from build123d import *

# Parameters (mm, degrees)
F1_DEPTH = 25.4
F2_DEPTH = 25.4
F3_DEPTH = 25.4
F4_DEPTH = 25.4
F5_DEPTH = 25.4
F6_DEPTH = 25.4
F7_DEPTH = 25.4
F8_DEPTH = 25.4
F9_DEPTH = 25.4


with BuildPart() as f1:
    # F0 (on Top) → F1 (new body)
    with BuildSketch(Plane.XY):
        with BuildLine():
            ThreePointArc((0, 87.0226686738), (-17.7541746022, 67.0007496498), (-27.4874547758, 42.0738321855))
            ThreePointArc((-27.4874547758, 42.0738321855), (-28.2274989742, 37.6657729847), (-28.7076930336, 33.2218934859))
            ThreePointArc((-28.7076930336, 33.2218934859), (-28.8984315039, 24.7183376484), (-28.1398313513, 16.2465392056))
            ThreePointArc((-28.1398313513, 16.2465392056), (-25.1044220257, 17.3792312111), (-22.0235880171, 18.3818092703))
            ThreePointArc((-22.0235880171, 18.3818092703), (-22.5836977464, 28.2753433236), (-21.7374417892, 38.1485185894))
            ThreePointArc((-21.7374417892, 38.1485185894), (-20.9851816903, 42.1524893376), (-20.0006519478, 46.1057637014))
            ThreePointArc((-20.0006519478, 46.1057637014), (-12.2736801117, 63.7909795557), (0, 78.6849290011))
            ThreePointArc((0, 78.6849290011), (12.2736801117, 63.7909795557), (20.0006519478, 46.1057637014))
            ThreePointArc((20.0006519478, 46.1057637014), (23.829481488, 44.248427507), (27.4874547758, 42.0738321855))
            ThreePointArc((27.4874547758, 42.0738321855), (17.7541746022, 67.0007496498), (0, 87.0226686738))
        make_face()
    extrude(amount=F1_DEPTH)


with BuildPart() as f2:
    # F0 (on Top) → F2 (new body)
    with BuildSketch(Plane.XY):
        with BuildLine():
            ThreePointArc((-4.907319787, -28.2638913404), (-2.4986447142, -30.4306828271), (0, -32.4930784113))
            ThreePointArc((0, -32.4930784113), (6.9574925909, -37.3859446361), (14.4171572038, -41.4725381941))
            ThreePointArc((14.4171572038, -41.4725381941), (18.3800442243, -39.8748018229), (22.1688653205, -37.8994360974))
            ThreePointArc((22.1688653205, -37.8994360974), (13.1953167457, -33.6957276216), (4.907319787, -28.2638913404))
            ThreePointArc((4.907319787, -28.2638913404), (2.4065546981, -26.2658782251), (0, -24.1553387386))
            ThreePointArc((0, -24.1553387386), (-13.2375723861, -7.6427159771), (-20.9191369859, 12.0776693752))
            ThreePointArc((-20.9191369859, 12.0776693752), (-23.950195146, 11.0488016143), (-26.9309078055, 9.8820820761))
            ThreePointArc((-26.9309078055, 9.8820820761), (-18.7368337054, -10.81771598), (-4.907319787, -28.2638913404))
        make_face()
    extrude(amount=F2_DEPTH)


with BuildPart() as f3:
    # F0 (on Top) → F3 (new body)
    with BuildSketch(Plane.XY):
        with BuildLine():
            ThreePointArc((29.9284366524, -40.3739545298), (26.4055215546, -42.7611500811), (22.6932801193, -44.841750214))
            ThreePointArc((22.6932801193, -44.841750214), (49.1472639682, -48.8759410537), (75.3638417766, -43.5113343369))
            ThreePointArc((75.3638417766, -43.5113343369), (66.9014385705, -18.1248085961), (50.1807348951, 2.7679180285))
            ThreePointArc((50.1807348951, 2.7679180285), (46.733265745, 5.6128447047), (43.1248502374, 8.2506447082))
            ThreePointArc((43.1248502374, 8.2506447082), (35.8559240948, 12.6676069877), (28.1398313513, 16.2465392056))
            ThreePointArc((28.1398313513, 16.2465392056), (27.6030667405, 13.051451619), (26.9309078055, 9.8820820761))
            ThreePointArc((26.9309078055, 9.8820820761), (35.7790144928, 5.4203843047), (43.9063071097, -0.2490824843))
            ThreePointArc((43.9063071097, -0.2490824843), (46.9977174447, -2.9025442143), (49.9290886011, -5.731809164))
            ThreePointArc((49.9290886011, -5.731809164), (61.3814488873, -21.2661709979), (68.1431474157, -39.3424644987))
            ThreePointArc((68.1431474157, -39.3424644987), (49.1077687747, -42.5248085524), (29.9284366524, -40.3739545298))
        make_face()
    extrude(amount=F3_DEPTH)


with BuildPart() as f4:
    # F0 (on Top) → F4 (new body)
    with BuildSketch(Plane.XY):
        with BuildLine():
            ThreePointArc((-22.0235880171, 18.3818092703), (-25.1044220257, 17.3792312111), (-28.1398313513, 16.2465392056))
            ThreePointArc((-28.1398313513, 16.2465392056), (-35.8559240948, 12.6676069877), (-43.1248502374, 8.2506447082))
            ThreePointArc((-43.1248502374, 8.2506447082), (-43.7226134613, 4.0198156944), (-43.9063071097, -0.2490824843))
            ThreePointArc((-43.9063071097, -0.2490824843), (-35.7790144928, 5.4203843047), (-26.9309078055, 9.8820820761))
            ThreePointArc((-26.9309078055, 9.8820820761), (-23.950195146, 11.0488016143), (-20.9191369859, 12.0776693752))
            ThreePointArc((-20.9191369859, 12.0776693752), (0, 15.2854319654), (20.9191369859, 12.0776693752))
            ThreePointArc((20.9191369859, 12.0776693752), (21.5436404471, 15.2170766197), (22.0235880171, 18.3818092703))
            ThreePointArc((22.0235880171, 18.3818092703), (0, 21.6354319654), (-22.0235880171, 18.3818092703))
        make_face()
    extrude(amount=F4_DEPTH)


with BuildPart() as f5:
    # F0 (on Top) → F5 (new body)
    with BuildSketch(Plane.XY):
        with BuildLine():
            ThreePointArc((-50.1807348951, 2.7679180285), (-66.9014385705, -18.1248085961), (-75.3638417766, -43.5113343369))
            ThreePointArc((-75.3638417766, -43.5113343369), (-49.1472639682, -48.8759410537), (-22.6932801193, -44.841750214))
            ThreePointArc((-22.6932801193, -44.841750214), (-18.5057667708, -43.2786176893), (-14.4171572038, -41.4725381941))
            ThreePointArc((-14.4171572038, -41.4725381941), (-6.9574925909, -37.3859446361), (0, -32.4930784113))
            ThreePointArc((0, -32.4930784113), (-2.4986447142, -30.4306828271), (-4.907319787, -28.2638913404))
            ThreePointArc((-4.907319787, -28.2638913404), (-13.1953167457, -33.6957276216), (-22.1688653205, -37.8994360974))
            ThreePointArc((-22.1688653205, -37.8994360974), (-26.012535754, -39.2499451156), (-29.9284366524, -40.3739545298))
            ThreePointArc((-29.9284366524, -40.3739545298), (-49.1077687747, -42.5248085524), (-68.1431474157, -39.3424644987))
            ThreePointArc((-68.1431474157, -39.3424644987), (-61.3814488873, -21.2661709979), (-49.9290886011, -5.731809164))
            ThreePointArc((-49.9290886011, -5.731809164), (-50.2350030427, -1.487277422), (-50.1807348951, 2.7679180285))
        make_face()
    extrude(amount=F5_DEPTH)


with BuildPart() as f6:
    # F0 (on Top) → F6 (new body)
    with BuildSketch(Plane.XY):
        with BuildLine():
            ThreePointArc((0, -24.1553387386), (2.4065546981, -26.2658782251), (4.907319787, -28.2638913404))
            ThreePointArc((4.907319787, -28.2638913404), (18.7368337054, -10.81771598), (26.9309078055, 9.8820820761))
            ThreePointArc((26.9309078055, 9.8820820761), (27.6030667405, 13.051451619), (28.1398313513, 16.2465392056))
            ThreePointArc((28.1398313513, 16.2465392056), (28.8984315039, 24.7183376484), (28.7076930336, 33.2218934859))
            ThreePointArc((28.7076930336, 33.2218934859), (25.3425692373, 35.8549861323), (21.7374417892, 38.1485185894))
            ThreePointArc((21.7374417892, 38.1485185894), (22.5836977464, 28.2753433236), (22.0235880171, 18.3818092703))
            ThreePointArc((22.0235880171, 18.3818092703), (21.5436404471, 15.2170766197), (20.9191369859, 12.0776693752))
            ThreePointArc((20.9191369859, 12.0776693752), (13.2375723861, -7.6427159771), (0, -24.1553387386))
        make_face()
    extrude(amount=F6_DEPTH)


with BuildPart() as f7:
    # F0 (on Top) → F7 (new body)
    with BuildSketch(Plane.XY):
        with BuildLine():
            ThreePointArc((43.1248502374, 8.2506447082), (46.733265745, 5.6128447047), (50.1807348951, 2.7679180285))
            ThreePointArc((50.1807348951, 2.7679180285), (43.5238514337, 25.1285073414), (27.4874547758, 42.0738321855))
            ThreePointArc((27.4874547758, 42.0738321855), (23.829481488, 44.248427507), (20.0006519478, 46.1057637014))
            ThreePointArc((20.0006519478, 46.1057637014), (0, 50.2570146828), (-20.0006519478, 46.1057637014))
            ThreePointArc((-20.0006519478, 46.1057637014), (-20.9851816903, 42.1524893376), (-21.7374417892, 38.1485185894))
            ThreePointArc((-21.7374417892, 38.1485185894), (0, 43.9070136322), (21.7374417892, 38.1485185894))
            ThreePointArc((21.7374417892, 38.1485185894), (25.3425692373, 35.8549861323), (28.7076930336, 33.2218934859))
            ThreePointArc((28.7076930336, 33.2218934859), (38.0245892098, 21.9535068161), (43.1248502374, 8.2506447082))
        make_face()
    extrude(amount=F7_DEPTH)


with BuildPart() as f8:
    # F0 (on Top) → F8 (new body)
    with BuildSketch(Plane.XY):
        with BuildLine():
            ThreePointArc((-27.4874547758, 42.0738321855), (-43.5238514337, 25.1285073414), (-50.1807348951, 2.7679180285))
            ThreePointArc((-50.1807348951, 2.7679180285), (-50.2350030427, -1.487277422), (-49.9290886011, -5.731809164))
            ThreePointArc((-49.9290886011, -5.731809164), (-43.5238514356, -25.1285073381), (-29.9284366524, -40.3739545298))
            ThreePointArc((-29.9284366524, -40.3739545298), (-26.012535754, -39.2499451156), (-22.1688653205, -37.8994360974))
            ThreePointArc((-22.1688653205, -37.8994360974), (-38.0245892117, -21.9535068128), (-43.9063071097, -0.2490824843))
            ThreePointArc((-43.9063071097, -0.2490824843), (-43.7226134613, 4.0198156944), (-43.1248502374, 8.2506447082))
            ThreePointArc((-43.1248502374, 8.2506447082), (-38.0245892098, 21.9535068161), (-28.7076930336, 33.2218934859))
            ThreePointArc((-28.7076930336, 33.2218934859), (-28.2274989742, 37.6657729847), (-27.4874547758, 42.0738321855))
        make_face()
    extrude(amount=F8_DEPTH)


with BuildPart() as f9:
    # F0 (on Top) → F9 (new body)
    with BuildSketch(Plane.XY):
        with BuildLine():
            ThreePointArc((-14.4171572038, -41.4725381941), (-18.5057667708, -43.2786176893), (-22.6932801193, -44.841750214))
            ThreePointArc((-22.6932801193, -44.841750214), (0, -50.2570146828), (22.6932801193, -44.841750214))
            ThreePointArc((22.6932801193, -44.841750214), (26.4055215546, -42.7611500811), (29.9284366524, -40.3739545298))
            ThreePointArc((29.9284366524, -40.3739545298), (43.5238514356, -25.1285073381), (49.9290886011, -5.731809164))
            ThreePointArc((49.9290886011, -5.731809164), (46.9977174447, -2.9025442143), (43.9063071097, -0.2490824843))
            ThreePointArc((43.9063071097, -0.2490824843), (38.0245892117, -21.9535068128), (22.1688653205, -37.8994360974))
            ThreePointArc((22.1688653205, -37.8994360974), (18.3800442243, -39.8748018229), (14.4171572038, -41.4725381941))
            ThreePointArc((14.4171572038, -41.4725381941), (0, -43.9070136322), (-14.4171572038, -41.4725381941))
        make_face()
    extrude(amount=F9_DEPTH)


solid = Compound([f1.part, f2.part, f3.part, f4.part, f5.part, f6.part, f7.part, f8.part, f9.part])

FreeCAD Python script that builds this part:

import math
import FreeCAD as App
import Part
import Sketcher
from FreeCAD import Vector
Q = App.Units.Quantity

doc = App.newDocument("Part")
params = doc.addObject("Spreadsheet::Sheet", "Params")
for row, (alias, value) in enumerate([
    ("pad1_length", "1 in"),
    ("pad2_length", "1 in"),
    ("pad3_length", "1 in"),
    ("pad4_length", "1 in"),
    ("pad5_length", "1 in"),
    ("pad6_length", "1 in"),
    ("pad7_length", "1 in"),
    ("pad8_length", "1 in"),
    ("pad9_length", "1 in"),
], start=1):
    params.set(f"A{row}", alias)
    params.set(f"B{row}", "=" + value)
    params.setAlias(f"B{row}", alias)

body = doc.addObject("PartDesign::Body", "Body")

sketch1 = body.newObject("Sketcher::SketchObject", "Sketch")
sketch1.AttachmentSupport = (doc.getObject("XY_Plane"), [""])
sketch1.MapMode = "FlatFace"
sketch1.addGeometry([
    Part.ArcOfCircle(Part.Circle(Vector(47.22401, 27.264795, 0), Vector(0, 0, 1), 76.165022), math.radians(128.317761), math.radians(168.788364)),
    Part.ArcOfCircle(Part.Circle(Vector(47.22401, 27.264795, 0), Vector(0, 0, 1), 76.165022), math.radians(168.788364), math.radians(175.514141)),
    Part.ArcOfCircle(Part.Circle(Vector(47.22401, 27.264795, 0), Vector(0, 0, 1), 76.165022), math.radians(175.514141), math.radians(188.317761)),
    Part.ArcOfCircle(Part.Circle(Vector(0, -54.52959, 0), Vector(0, 0, 1), 76.165022), math.radians(106.807445), math.radians(111.682239)),
    Part.ArcOfCircle(Part.Circle(Vector(47.22401, 27.264795, 0), Vector(0, 0, 1), 69.815022), math.radians(171.031367), math.radians(187.309902)),
    Part.ArcOfCircle(Part.Circle(Vector(47.22401, 27.264795, 0), Vector(0, 0, 1), 69.815022), math.radians(164.343479), math.radians(171.031367)),
    Part.ArcOfCircle(Part.Circle(Vector(47.22401, 27.264795, 0), Vector(0, 0, 1), 69.815022), math.radians(132.564221), math.radians(164.343479)),
    Part.ArcOfCircle(Part.Circle(Vector(-47.22401, 27.264795, 0), Vector(0, 0, 1), 69.815022), math.radians(15.656521), math.radians(47.435779)),
    Part.ArcOfCircle(Part.Circle(Vector(0, 0, 0), Vector(0, 0, 1), 50.257015), math.radians(56.842823), math.radians(66.54883)),
    Part.ArcOfCircle(Part.Circle(Vector(-47.22401, 27.264795, 0), Vector(0, 0, 1), 76.165022), math.radians(11.211636), math.radians(51.682239)),
], False)
sketch1.addConstraint([
    Sketcher.Constraint("Tangent", 0, 2, 1, 1),
    Sketcher.Constraint("Tangent", 1, 2, 2, 1),
    Sketcher.Constraint("Coincident", 2, 2, 3, 2),
    Sketcher.Constraint("Coincident", 3, 1, 4, 2),
    Sketcher.Constraint("Tangent", 4, 1, 5, 2),
    Sketcher.Constraint("Tangent", 5, 1, 6, 2),
    Sketcher.Constraint("Coincident", 6, 1, 7, 2),
    Sketcher.Constraint("Coincident", 7, 1, 8, 2),
    Sketcher.Constraint("Coincident", 8, 1, 9, 1),
    Sketcher.Constraint("Coincident", 9, 2, 0, 1),
    Sketcher.Constraint("Coincident", 8, 3, -1, 1),
    Sketcher.Constraint("Coincident", 2, 3, 0, 3),
    Sketcher.Constraint("Coincident", 4, 3, 0, 3),
    Sketcher.Constraint("Coincident", 6, 3, 0, 3),
    Sketcher.Constraint("Coincident", 9, 3, 7, 3),
    Sketcher.Constraint("Equal", 2, 3),
    Sketcher.Constraint("Equal", 6, 7),
    Sketcher.Constraint("Equal", 3, 9),
    Sketcher.Constraint("Symmetric", 0, 3, 7, 3, -2),
    Sketcher.Constraint("PointOnObject", 3, 3, -2),
    Sketcher.Constraint("Horizontal", 5, 1, 7, 1),
    Sketcher.Constraint("Horizontal", 0, 2, 8, 1),
    Sketcher.Constraint("Radius", 0, 76.165022),
    Sketcher.Constraint("Radius", 4, 69.815022),
    Sketcher.Constraint("Radius", 8, 50.257015),
    Sketcher.Constraint("DistanceY", 7, 3, 1, 2, 5.957098),
    Sketcher.Constraint("DistanceX", -1, 1, 0, 3, 47.22401),
    Sketcher.Constraint("DistanceY", 3, 3, -1, 1, 54.52959),
    Sketcher.Constraint("DistanceX", 2, 2, -1, 1, 28.139831),
    Sketcher.Constraint("DistanceX", 4, 1, -1, 1, 21.737442),
])
pad1 = body.newObject("PartDesign::Pad", "Pad")
pad1.Profile = sketch1
pad1.setExpression("Length", "Params.pad1_length")
body2 = doc.addObject("PartDesign::Body", "Body001")

sketch2 = body2.newObject("Sketcher::SketchObject", "Sketch001")
sketch2.AttachmentSupport = (doc.getObject("XY_Plane001"), [""])
sketch2.MapMode = "FlatFace"
sketch2.addGeometry([
    Part.ArcOfCircle(Part.Circle(Vector(47.22401, 27.264795, 0), Vector(0, 0, 1), 76.165022), math.radians(-133.192555), math.radians(-128.317761)),
    Part.ArcOfCircle(Part.Circle(Vector(47.22401, 27.264795, 0), Vector(0, 0, 1), 76.165022), math.radians(-128.317761), math.radians(-115.514141)),
    Part.ArcOfCircle(Part.Circle(Vector(0, 0, 0), Vector(0, 0, 1), 43.907014), math.radians(-70.830943), math.radians(-59.674962)),
    Part.ArcOfCircle(Part.Circle(Vector(47.22401, 27.264795, 0), Vector(0, 0, 1), 69.815022), math.radians(-127.309902), math.radians(-111.031367)),
    Part.ArcOfCircle(Part.Circle(Vector(47.22401, 27.264795, 0), Vector(0, 0, 1), 69.815022), math.radians(-132.564221), math.radians(-127.309902)),
    Part.ArcOfCircle(Part.Circle(Vector(47.22401, 27.264795, 0), Vector(0, 0, 1), 69.815022), math.radians(-167.435779), math.radians(-132.564221)),
    Part.ArcOfCircle(Part.Circle(Vector(0, -54.52959, 0), Vector(0, 0, 1), 69.815022), math.radians(107.435779), math.radians(112.690098)),
    Part.ArcOfCircle(Part.Circle(Vector(47.22401, 27.264795, 0), Vector(0, 0, 1), 76.165022), math.radians(-166.807445), math.radians(-133.192555)),
], False)
sketch2.addConstraint([
    Sketcher.Constraint("Tangent", 0, 2, 1, 1),
    Sketcher.Constraint("Coincident", 1, 2, 2, 1),
    Sketcher.Constraint("Coincident", 2, 2, 3, 2),
    Sketcher.Constraint("Tangent", 3, 1, 4, 2),
    Sketcher.Constraint("Tangent", 4, 1, 5, 2),
    Sketcher.Constraint("Coincident", 5, 1, 6, 1),
    Sketcher.Constraint("Coincident", 6, 2, 7, 1),
    Sketcher.Constraint("Tangent", 7, 2, 0, 1),
    Sketcher.Constraint("Coincident", 2, 3, -1, 1),
    Sketcher.Constraint("Coincident", 3, 3, 0, 3),
    Sketcher.Constraint("Coincident", 5, 3, 0, 3),
    Sketcher.Constraint("Equal", 0, 1),
    Sketcher.Constraint("Equal", 5, 6),
    Sketcher.Constraint("Equal", 1, 7),
    Sketcher.Constraint("Symmetric", 3, 1, 7, 2, -2),
    Sketcher.Constraint("PointOnObject", 6, 3, -2),
    Sketcher.Constraint("PointOnObject", 0, 2, -2),
    Sketcher.Constraint("PointOnObject", 4, 1, -2),
    Sketcher.Constraint("Radius", 0, 76.165022),
    Sketcher.Constraint("Radius", 2, 43.907014),
    Sketcher.Constraint("Radius", 3, 69.815022),
    Sketcher.Constraint("DistanceY", 6, 3, 3, 1, 26.265699),
    Sketcher.Constraint("DistanceY", 1, 2, 4, 1, 17.317199),
    Sketcher.Constraint("DistanceX", -1, 1, 0, 3, 47.22401),
])
pad2 = body2.newObject("PartDesign::Pad", "Pad001")
pad2.Profile = sketch2
pad2.setExpression("Length", "Params.pad2_length")
body3 = doc.addObject("PartDesign::Body", "Body002")

sketch3 = body3.newObject("Sketcher::SketchObject", "Sketch002")
sketch3.AttachmentSupport = (doc.getObject("XY_Plane002"), [""])
sketch3.MapMode = "FlatFace"
sketch3.addGeometry([
    Part.ArcOfCircle(Part.Circle(Vector(0, 0, 0), Vector(0, 0, 1), 50.257015), math.radians(-63.157177), math.radians(-53.45117)),
    Part.ArcOfCircle(Part.Circle(Vector(47.22401, 27.264795, 0), Vector(0, 0, 1), 76.165022), math.radians(-108.788364), math.radians(-68.317761)),
    Part.ArcOfCircle(Part.Circle(Vector(0, -54.52959, 0), Vector(0, 0, 1), 76.165022), math.radians(8.317761), math.radians(48.788364)),
    Part.ArcOfCircle(Part.Circle(Vector(0, -54.52959, 0), Vector(0, 0, 1), 76.165022), math.radians(48.788364), math.radians(55.514141)),
    Part.ArcOfCircle(Part.Circle(Vector(0, -54.52959, 0), Vector(0, 0, 1), 76.165022), math.radians(55.514141), math.radians(68.317761)),
    Part.ArcOfCircle(Part.Circle(Vector(-47.22401, 27.264795, 0), Vector(0, 0, 1), 76.165022), math.radians(-13.192555), math.radians(-8.317761)),
    Part.ArcOfCircle(Part.Circle(Vector(0, -54.52959, 0), Vector(0, 0, 1), 69.815022), math.radians(51.031367), math.radians(67.309902)),
    Part.ArcOfCircle(Part.Circle(Vector(0, -54.52959, 0), Vector(0, 0, 1), 69.815022), math.radians(44.343479), math.radians(51.031367)),
    Part.ArcOfCircle(Part.Circle(Vector(0, -54.52959, 0), Vector(0, 0, 1), 69.815022), math.radians(12.564221), math.radians(44.343479)),
    Part.ArcOfCircle(Part.Circle(Vector(47.22401, 27.264795, 0), Vector(0, 0, 1), 69.815022), math.radians(-104.343479), math.radians(-72.564221)),
], False)
sketch3.addConstraint([
    Sketcher.Constraint("Coincident", 0, 1, 1, 1),
    Sketcher.Constraint("Coincident", 1, 2, 2, 1),
    Sketcher.Constraint("Tangent", 2, 2, 3, 1),
    Sketcher.Constraint("Tangent", 3, 2, 4, 1),
    Sketcher.Constraint("Coincident", 4, 2, 5, 2),
    Sketcher.Constraint("Coincident", 5, 1, 6, 2),
    Sketcher.Constraint("Tangent", 6, 1, 7, 2),
    Sketcher.Constraint("Tangent", 7, 1, 8, 2),
    Sketcher.Constraint("Coincident", 8, 1, 9, 2),
    Sketcher.Constraint("Coincident", 9, 1, 0, 2),
    Sketcher.Constraint("Coincident", 0, 3, -1, 1),
    Sketcher.Constraint("Coincident", 4, 3, 2, 3),
    Sketcher.Constraint("Coincident", 6, 3, 2, 3),
    Sketcher.Constraint("Coincident", 8, 3, 2, 3),
    Sketcher.Constraint("Coincident", 9, 3, 1, 3),
    Sketcher.Constraint("Equal", 1, 2),
    Sketcher.Constraint("Equal", 4, 5),
    Sketcher.Constraint("Equal", 8, 9),
    Sketcher.Constraint("Symmetric", 1, 3, 5, 3, -2),
    Sketcher.Constraint("PointOnObject", 2, 3, -2),
    Sketcher.Constraint("Radius", 0, 50.257015),
    Sketcher.Constraint("Radius", 1, 76.165022),
    Sketcher.Constraint("Radius", 6, 69.815022),
    Sketcher.Constraint("DistanceY", 6, 1, 2, 2, 3.017001),
    Sketcher.Constraint("DistanceX", 5, 1, 6, 1, 16.975399),
    Sketcher.Constraint("DistanceX", -1, 1, 1, 3, 47.22401),
    Sketcher.Constraint("DistanceY", 2, 3, -1, 1, 54.52959),
    Sketcher.Constraint("DistanceX", -1, 1, 0, 1, 22.69328),
    Sketcher.Constraint("DistanceX", -1, 1, 3, 2, 43.12485),
    Sketcher.Constraint("DistanceX", -1, 1, 7, 1, 49.929089),
])
pad3 = body3.newObject("PartDesign::Pad", "Pad002")
pad3.Profile = sketch3
pad3.setExpression("Length", "Params.pad3_length")
body4 = doc.addObject("PartDesign::Body", "Body003")

sketch4 = body4.newObject("Sketcher::SketchObject", "Sketch003")
sketch4.AttachmentSupport = (doc.getObject("XY_Plane003"), [""])
sketch4.MapMode = "FlatFace"
sketch4.addGeometry([
    Part.ArcOfCircle(Part.Circle(Vector(0, -54.52959, 0), Vector(0, 0, 1), 76.165022), math.radians(106.807445), math.radians(111.682239)),
    Part.ArcOfCircle(Part.Circle(Vector(0, -54.52959, 0), Vector(0, 0, 1), 76.165022), math.radians(111.682239), math.radians(124.485859)),
    Part.ArcOfCircle(Part.Circle(Vector(0, 0, 0), Vector(0, 0, 1), 43.907014), math.radians(169.169057), math.radians(180.325038)),
    Part.ArcOfCircle(Part.Circle(Vector(0, -54.52959, 0), Vector(0, 0, 1), 69.815022), math.radians(112.690098), math.radians(128.968633)),
    Part.ArcOfCircle(Part.Circle(Vector(0, -54.52959, 0), Vector(0, 0, 1), 69.815022), math.radians(107.435779), math.radians(112.690098)),
    Part.ArcOfCircle(Part.Circle(Vector(0, -54.52959, 0), Vector(0, 0, 1), 69.815022), math.radians(72.564221), math.radians(107.435779)),
    Part.ArcOfCircle(Part.Circle(Vector(-47.22401, 27.264795, 0), Vector(0, 0, 1), 69.815022), math.radians(-12.564221), math.radians(-7.309902)),
    Part.ArcOfCircle(Part.Circle(Vector(0, -54.52959, 0), Vector(0, 0, 1), 76.165022), math.radians(73.192555), math.radians(106.807445)),
], False)
sketch4.addConstraint([
    Sketcher.Constraint("Tangent", 0, 2, 1, 1),
    Sketcher.Constraint("Coincident", 1, 2, 2, 1),
    Sketcher.Constraint("Coincident", 2, 2, 3, 2),
    Sketcher.Constraint("Tangent", 3, 1, 4, 2),
    Sketcher.Constraint("Tangent", 4, 1, 5, 2),
    Sketcher.Constraint("Coincident", 5, 1, 6, 1),
    Sketcher.Constraint("Coincident", 6, 2, 7, 1),
    Sketcher.Constraint("Tangent", 7, 2, 0, 1),
    Sketcher.Constraint("Coincident", 2, 3, -1, 1),
    Sketcher.Constraint("Coincident", 3, 3, 0, 3),
    Sketcher.Constraint("Coincident", 5, 3, 0, 3),
    Sketcher.Constraint("Equal", 0, 1),
    Sketcher.Constraint("Equal", 5, 6),
    Sketcher.Constraint("Equal", 1, 7),
    Sketcher.Constraint("Symmetric", 4, 1, 5, 1, -2),
    Sketcher.Constraint("Horizontal", 6, 2, 7, 2),
    Sketcher.Constraint("Radius", 0, 76.165022),
    Sketcher.Constraint("Radius", 2, 43.907014),
    Sketcher.Constraint("Radius", 3, 69.815022),
    Sketcher.Constraint("DistanceX", 2, 2, 3, 1, 16.975399),
    Sketcher.Constraint("DistanceY", 0, 3, -1, 1, 54.52959),
    Sketcher.Constraint("DistanceX", 6, 3, -1, 1, 47.22401),
    Sketcher.Constraint("DistanceX", 0, 2, -1, 1, 28.139831),
    Sketcher.Constraint("DistanceY", -1, 1, 4, 1, 12.077669),
])
pad4 = body4.newObject("PartDesign::Pad", "Pad003")
pad4.Profile = sketch4
pad4.setExpression("Length", "Params.pad4_length")
body5 = doc.addObject("PartDesign::Body", "Body004")

sketch5 = body5.newObject("Sketcher::SketchObject", "Sketch004")
sketch5.AttachmentSupport = (doc.getObject("XY_Plane004"), [""])
sketch5.MapMode = "FlatFace"
sketch5.addGeometry([
    Part.ArcOfCircle(Part.Circle(Vector(0, -54.52959, 0), Vector(0, 0, 1), 76.165022), math.radians(131.211636), math.radians(171.682239)),
    Part.ArcOfCircle(Part.Circle(Vector(-47.22401, 27.264795, 0), Vector(0, 0, 1), 76.165022), math.radians(-111.682239), math.radians(-71.211636)),
    Part.ArcOfCircle(Part.Circle(Vector(-47.22401, 27.264795, 0), Vector(0, 0, 1), 76.165022), math.radians(-71.211636), math.radians(-64.485859)),
    Part.ArcOfCircle(Part.Circle(Vector(-47.22401, 27.264795, 0), Vector(0, 0, 1), 76.165022), math.radians(-64.485859), math.radians(-51.682239)),
    Part.ArcOfCircle(Part.Circle(Vector(47.22401, 27.264795, 0), Vector(0, 0, 1), 76.165022), math.radians(-133.192555), math.radians(-128.317761)),
    Part.ArcOfCircle(Part.Circle(Vector(-47.22401, 27.264795, 0), Vector(0, 0, 1), 69.815022), math.radians(-68.968633), math.radians(-52.690098)),
    Part.ArcOfCircle(Part.Circle(Vector(-47.22401, 27.264795, 0), Vector(0, 0, 1), 69.815022), math.radians(-75.656521), math.radians(-68.968633)),
    Part.ArcOfCircle(Part.Circle(Vector(-47.22401, 27.264795, 0), Vector(0, 0, 1), 69.815022), math.radians(-107.435779), math.radians(-75.656521)),
    Part.ArcOfCircle(Part.Circle(Vector(0, -54.52959, 0), Vector(0, 0, 1), 69.815022), math.radians(135.656521), math.radians(167.435779)),
    Part.ArcOfCircle(Part.Circle(Vector(0, 0, 0), Vector(0, 0, 1), 50.257015), math.radians(176.842823), math.radians(186.54883)),
], False)
sketch5.addConstraint([
    Sketcher.Constraint("Coincident", 0, 2, 1, 1),
    Sketcher.Constraint("Tangent", 1, 2, 2, 1),
    Sketcher.Constraint("Tangent", 2, 2, 3, 1),
    Sketcher.Constraint("Coincident", 3, 2, 4, 2),
    Sketcher.Constraint("Coincident", 4, 1, 5, 2),
    Sketcher.Constraint("Tangent", 5, 1, 6, 2),
    Sketcher.Constraint("Tangent", 6, 1, 7, 2),
    Sketcher.Constraint("Coincident", 7, 1, 8, 2),
    Sketcher.Constraint("Coincident", 8, 1, 9, 2),
    Sketcher.Constraint("Coincident", 9, 1, 0, 1),
    Sketcher.Constraint("Coincident", 9, 3, -1, 1),
    Sketcher.Constraint("Coincident", 3, 3, 1, 3),
    Sketcher.Constraint("Coincident", 5, 3, 1, 3),
    Sketcher.Constraint("Coincident", 7, 3, 1, 3),
    Sketcher.Constraint("Coincident", 8, 3, 0, 3),
    Sketcher.Constraint("Equal", 0, 1),
    Sketcher.Constraint("Equal", 3, 4),
    Sketcher.Constraint("Equal", 7, 8),
    Sketcher.Constraint("Symmetric", 1, 3, 4, 3, -2),
    Sketcher.Constraint("PointOnObject", 0, 3, -2),
    Sketcher.Constraint("Radius", 0, 76.165022),
    Sketcher.Constraint("Radius", 5, 69.815022),
    Sketcher.Constraint("Radius", 9, 50.257015),
    Sketcher.Constraint("DistanceY", 0, 3, 4, 1, 26.265699),
    Sketcher.Constraint("DistanceY", 0, 3, -1, 1, 54.52959),
    Sketcher.Constraint("DistanceX", 1, 3, -1, 1, 47.22401),
    Sketcher.Constraint("DistanceX", 1, 2, -1, 1, 22.69328),
    Sketcher.Constraint("DistanceY", 2, 2, -1, 1, 41.472538),
    Sketcher.Constraint("DistanceX", 5, 1, 2, 2, 7.751708),
    Sketcher.Constraint("DistanceX", 6, 1, 5, 1, 7.759571),
])
pad5 = body5.newObject("PartDesign::Pad", "Pad004")
pad5.Profile = sketch5
pad5.setExpression("Length", "Params.pad5_length")
body6 = doc.addObject("PartDesign::Body", "Body005")

sketch6 = body6.newObject("Sketcher::SketchObject", "Sketch005")
sketch6.AttachmentSupport = (doc.getObject("XY_Plane005"), [""])
sketch6.MapMode = "FlatFace"
sketch6.addGeometry([
    Part.ArcOfCircle(Part.Circle(Vector(47.22401, 27.264795, 0), Vector(0, 0, 1), 69.815022), math.radians(-132.564221), math.radians(-127.309902)),
    Part.ArcOfCircle(Part.Circle(Vector(-47.22401, 27.264795, 0), Vector(0, 0, 1), 76.165022), math.radians(-46.807445), math.radians(-8.317761)),
    Part.ArcOfCircle(Part.Circle(Vector(-47.22401, 27.264795, 0), Vector(0, 0, 1), 76.165022), math.radians(-8.317761), math.radians(4.485859)),
    Part.ArcOfCircle(Part.Circle(Vector(0, 0, 0), Vector(0, 0, 1), 43.907014), math.radians(49.169057), math.radians(60.325038)),
    Part.ArcOfCircle(Part.Circle(Vector(-47.22401, 27.264795, 0), Vector(0, 0, 1), 69.815022), math.radians(-7.309902), math.radians(8.968633)),
    Part.ArcOfCircle(Part.Circle(Vector(-47.22401, 27.264795, 0), Vector(0, 0, 1), 69.815022), math.radians(-12.564221), math.radians(-7.309902)),
    Part.ArcOfCircle(Part.Circle(Vector(-47.22401, 27.264795, 0), Vector(0, 0, 1), 69.815022), math.radians(-47.435779), math.radians(-12.564221)),
], False)
sketch6.addConstraint([
    Sketcher.Constraint("Coincident", 0, 2, 1, 1),
    Sketcher.Constraint("Tangent", 1, 2, 2, 1),
    Sketcher.Constraint("Coincident", 2, 2, 3, 1),
    Sketcher.Constraint("Coincident", 3, 2, 4, 2),
    Sketcher.Constraint("Tangent", 4, 1, 5, 2),
    Sketcher.Constraint("Tangent", 5, 1, 6, 2),
    Sketcher.Constraint("Coincident", 6, 1, 0, 1),
    Sketcher.Constraint("Coincident", 3, 3, -1, 1),
    Sketcher.Constraint("Coincident", 4, 3, 1, 3),
    Sketcher.Constraint("Coincident", 6, 3, 1, 3),
    Sketcher.Constraint("Equal", 1, 2),
    Sketcher.Constraint("Equal", 0, 4),
    Sketcher.Constraint("Symmetric", 0, 3, 1, 3, -2),
    Sketcher.Constraint("Radius", 0, 69.815022),
    Sketcher.Constraint("Radius", 1, 76.165022),
    Sketcher.Constraint("Radius", 3, 43.907014),
    Sketcher.Constraint("DistanceY", 0, 2, 2, 2, Q("2.4207002 in")),
    Sketcher.Constraint("DistanceY", 0, 3, 2, 2, 5.957098),
    Sketcher.Constraint("DistanceX", -1, 1, 1, 2, 28.139831),
    Sketcher.Constraint("DistanceX", -1, 1, 4, 1, 22.023588),
    Sketcher.Constraint("DistanceY", -1, 1, 5, 1, 12.077669),
])
pad6 = body6.newObject("PartDesign::Pad", "Pad005")
pad6.Profile = sketch6
pad6.setExpression("Length", "Params.pad6_length")
body7 = doc.addObject("PartDesign::Body", "Body006")

sketch7 = body7.newObject("Sketcher::SketchObject", "Sketch006")
sketch7.AttachmentSupport = (doc.getObject("XY_Plane006"), [""])
sketch7.MapMode = "FlatFace"
sketch7.addGeometry([
    Part.ArcOfCircle(Part.Circle(Vector(0, -54.52959, 0), Vector(0, 0, 1), 76.165022), math.radians(48.788364), math.radians(55.514141)),
    Part.ArcOfCircle(Part.Circle(Vector(0, 0, 0), Vector(0, 0, 1), 50.257015), math.radians(3.157177), math.radians(56.842823)),
    Part.ArcOfCircle(Part.Circle(Vector(0, 0, 0), Vector(0, 0, 1), 50.257015), math.radians(56.842823), math.radians(66.54883)),
    Part.ArcOfCircle(Part.Circle(Vector(0, 0, 0), Vector(0, 0, 1), 50.257015), math.radians(66.54883), math.radians(113.45117)),
    Part.ArcOfCircle(Part.Circle(Vector(47.22401, 27.264795, 0), Vector(0, 0, 1), 69.815022), math.radians(164.343479), math.radians(171.031367)),
    Part.ArcOfCircle(Part.Circle(Vector(0, 0, 0), Vector(0, 0, 1), 43.907014), math.radians(60.325038), math.radians(119.674962)),
    Part.ArcOfCircle(Part.Circle(Vector(0, 0, 0), Vector(0, 0, 1), 43.907014), math.radians(49.169057), math.radians(60.325038)),
    Part.ArcOfCircle(Part.Circle(Vector(0, 0, 0), Vector(0, 0, 1), 43.907014), math.radians(10.830943), math.radians(49.169057)),
], False)
sketch7.addConstraint([
    Sketcher.Constraint("Coincident", 0, 1, 1, 1),
    Sketcher.Constraint("Tangent", 1, 2, 2, 1),
    Sketcher.Constraint("Tangent", 2, 2, 3, 1),
    Sketcher.Constraint("Coincident", 3, 2, 4, 1),
    Sketcher.Constraint("Coincident", 4, 2, 5, 2),
    Sketcher.Constraint("Tangent", 5, 1, 6, 2),
    Sketcher.Constraint("Tangent", 6, 1, 7, 2),
    Sketcher.Constraint("Coincident", 7, 1, 0, 2),
    Sketcher.Constraint("Coincident", 1, 3, -1, 1),
    Sketcher.Constraint("Coincident", 3, 3, -1, 1),
    Sketcher.Constraint("Coincident", 5, 3, -1, 1),
    Sketcher.Constraint("Coincident", 7, 3, -1, 1),
    Sketcher.Constraint("PointOnObject", 0, 3, -2),
    Sketcher.Constraint("Horizontal", 2, 2, 3, 2),
    Sketcher.Constraint("Horizontal", 4, 2, 5, 1),
    Sketcher.Constraint("Radius", 0, 76.165022),
    Sketcher.Constraint("Radius", 1, 50.257015),
    Sketcher.Constraint("Radius", 4, 69.815022),
    Sketcher.Constraint("Radius", 5, 43.907014),
    Sketcher.Constraint("DistanceY", 4, 3, 6, 1, 5.957098),
    Sketcher.Constraint("DistanceY", 0, 3, -1, 1, 54.52959),
    Sketcher.Constraint("DistanceX", -1, 1, 4, 3, 47.22401),
    Sketcher.Constraint("DistanceX", -1, 1, 2, 2, 20.000652),
    Sketcher.Constraint("DistanceX", 1, 2, 0, 1, 22.69328),
])
pad7 = body7.newObject("PartDesign::Pad", "Pad006")
pad7.Profile = sketch7
pad7.setExpression("Length", "Params.pad7_length")
body8 = doc.addObject("PartDesign::Body", "Body007")

sketch8 = body8.newObject("Sketcher::SketchObject", "Sketch007")
sketch8.AttachmentSupport = (doc.getObject("XY_Plane007"), [""])
sketch8.MapMode = "FlatFace"
sketch8.addGeometry([
    Part.ArcOfCircle(Part.Circle(Vector(0, 0, 0), Vector(0, 0, 1), 50.257015), math.radians(123.157177), math.radians(176.842823)),
    Part.ArcOfCircle(Part.Circle(Vector(0, 0, 0), Vector(0, 0, 1), 50.257015), math.radians(176.842823), math.radians(186.54883)),
    Part.ArcOfCircle(Part.Circle(Vector(0, 0, 0), Vector(0, 0, 1), 50.257015), math.radians(-173.45117), math.radians(-126.54883)),
    Part.ArcOfCircle(Part.Circle(Vector(-47.22401, 27.264795, 0), Vector(0, 0, 1), 69.815022), math.radians(-75.656521), math.radians(-68.968633)),
    Part.ArcOfCircle(Part.Circle(Vector(0, 0, 0), Vector(0, 0, 1), 43.907014), math.radians(-179.674962), math.radians(-120.325038)),
    Part.ArcOfCircle(Part.Circle(Vector(0, 0, 0), Vector(0, 0, 1), 43.907014), math.radians(169.169057), math.radians(180.325038)),
    Part.ArcOfCircle(Part.Circle(Vector(0, 0, 0), Vector(0, 0, 1), 43.907014), math.radians(130.830943), math.radians(169.169057)),
    Part.ArcOfCircle(Part.Circle(Vector(47.22401, 27.264795, 0), Vector(0, 0, 1), 76.165022), math.radians(168.788364), math.radians(175.514141)),
], False)
sketch8.addConstraint([
    Sketcher.Constraint("Tangent", 0, 2, 1, 1),
    Sketcher.Constraint("Tangent", 1, 2, 2, 1),
    Sketcher.Constraint("Coincident", 2, 2, 3, 1),
    Sketcher.Constraint("Coincident", 3, 2, 4, 2),
    Sketcher.Constraint("Tangent", 4, 1, 5, 2),
    Sketcher.Constraint("Tangent", 5, 1, 6, 2),
    Sketcher.Constraint("Coincident", 6, 1, 7, 2),
    Sketcher.Constraint("Coincident", 7, 1, 0, 1),
    Sketcher.Constraint("Coincident", 0, 3, -1, 1),
    Sketcher.Constraint("Coincident", 2, 3, -1, 1),
    Sketcher.Constraint("Coincident", 4, 3, -1, 1),
    Sketcher.Constraint("Coincident", 6, 3, -1, 1),
    Sketcher.Constraint("Symmetric", 3, 3, 7, 3, -2),
    Sketcher.Constraint("Radius", 0, 50.257015),
    Sketcher.Constraint("Radius", 3, 69.815022),
    Sketcher.Constraint("Radius", 4, 43.907014),
    Sketcher.Constraint("Radius", 7, 76.165022),
    Sketcher.Constraint("DistanceX", 0, 2, 2, 2, 20.252298),
    Sketcher.Constraint("DistanceY", 4, 1, 0, 2, 3.017001),
    Sketcher.Constraint("DistanceY", 3, 3, 6, 1, 5.957098),
    Sketcher.Constraint("DistanceX", 3, 3, -1, 1, 47.22401),
    Sketcher.Constraint("DistanceX", 1, 2, -1, 1, 49.929089),
    Sketcher.Constraint("DistanceX", 5, 1, -1, 1, 43.12485),
])
pad8 = body8.newObject("PartDesign::Pad", "Pad007")
pad8.Profile = sketch8
pad8.setExpression("Length", "Params.pad8_length")
body9 = doc.addObject("PartDesign::Body", "Body008")

sketch9 = body9.newObject("Sketcher::SketchObject", "Sketch008")
sketch9.AttachmentSupport = (doc.getObject("XY_Plane008"), [""])
sketch9.MapMode = "FlatFace"
sketch9.addGeometry([
    Part.ArcOfCircle(Part.Circle(Vector(-47.22401, 27.264795, 0), Vector(0, 0, 1), 76.165022), math.radians(-71.211636), math.radians(-64.485859)),
    Part.ArcOfCircle(Part.Circle(Vector(0, 0, 0), Vector(0, 0, 1), 50.257015), math.radians(-116.842823), math.radians(-53.45117)),
    Part.ArcOfCircle(Part.Circle(Vector(0, 0, 0), Vector(0, 0, 1), 50.257015), math.radians(-53.45117), math.radians(-6.54883)),
    Part.ArcOfCircle(Part.Circle(Vector(0, -54.52959, 0), Vector(0, 0, 1), 69.815022), math.radians(44.343479), math.radians(51.031367)),
    Part.ArcOfCircle(Part.Circle(Vector(0, 0, 0), Vector(0, 0, 1), 43.907014), math.radians(-59.674962), math.radians(-0.325038)),
    Part.ArcOfCircle(Part.Circle(Vector(0, 0, 0), Vector(0, 0, 1), 43.907014), math.radians(-70.830943), math.radians(-59.674962)),
    Part.ArcOfCircle(Part.Circle(Vector(0, 0, 0), Vector(0, 0, 1), 43.907014), math.radians(-109.169057), math.radians(-70.830943)),
], False)
sketch9.addConstraint([
    Sketcher.Constraint("Coincident", 0, 1, 1, 1),
    Sketcher.Constraint("Tangent", 1, 2, 2, 1),
    Sketcher.Constraint("Coincident", 2, 2, 3, 1),
    Sketcher.Constraint("Coincident", 3, 2, 4, 2),
    Sketcher.Constraint("Tangent", 4, 1, 5, 2),
    Sketcher.Constraint("Tangent", 5, 1, 6, 2),
    Sketcher.Constraint("Coincident", 6, 1, 0, 2),
    Sketcher.Constraint("Coincident", 1, 3, -1, 1),
    Sketcher.Constraint("Coincident", 4, 3, -1, 1),
    Sketcher.Constraint("Coincident", 6, 3, -1, 1),
    Sketcher.Constraint("Equal", 1, 2),
    Sketcher.Constraint("PointOnObject", 3, 3, -2),
    Sketcher.Constraint("Horizontal", 5, 1, 6, 1),
    Sketcher.Constraint("Radius", 0, 76.165022),
    Sketcher.Constraint("Radius", 1, 50.257015),
    Sketcher.Constraint("Radius", 3, 69.815022),
    Sketcher.Constraint("Radius", 4, 43.907014),
    Sketcher.Constraint("DistanceX", 0, 3, -1, 1, 47.22401),
    Sketcher.Constraint("DistanceY", 3, 3, -1, 1, 54.52959),
    Sketcher.Constraint("DistanceX", 0, 1, -1, 1, 22.69328),
    Sketcher.Constraint("DistanceX", 1, 2, 2, 2, 20.000652),
    Sketcher.Constraint("DistanceX", 4, 1, 1, 2, 7.759571),
])
pad9 = body9.newObject("PartDesign::Pad", "Pad008")
pad9.Profile = sketch9
pad9.setExpression("Length", "Params.pad9_length")

doc.recompute()
